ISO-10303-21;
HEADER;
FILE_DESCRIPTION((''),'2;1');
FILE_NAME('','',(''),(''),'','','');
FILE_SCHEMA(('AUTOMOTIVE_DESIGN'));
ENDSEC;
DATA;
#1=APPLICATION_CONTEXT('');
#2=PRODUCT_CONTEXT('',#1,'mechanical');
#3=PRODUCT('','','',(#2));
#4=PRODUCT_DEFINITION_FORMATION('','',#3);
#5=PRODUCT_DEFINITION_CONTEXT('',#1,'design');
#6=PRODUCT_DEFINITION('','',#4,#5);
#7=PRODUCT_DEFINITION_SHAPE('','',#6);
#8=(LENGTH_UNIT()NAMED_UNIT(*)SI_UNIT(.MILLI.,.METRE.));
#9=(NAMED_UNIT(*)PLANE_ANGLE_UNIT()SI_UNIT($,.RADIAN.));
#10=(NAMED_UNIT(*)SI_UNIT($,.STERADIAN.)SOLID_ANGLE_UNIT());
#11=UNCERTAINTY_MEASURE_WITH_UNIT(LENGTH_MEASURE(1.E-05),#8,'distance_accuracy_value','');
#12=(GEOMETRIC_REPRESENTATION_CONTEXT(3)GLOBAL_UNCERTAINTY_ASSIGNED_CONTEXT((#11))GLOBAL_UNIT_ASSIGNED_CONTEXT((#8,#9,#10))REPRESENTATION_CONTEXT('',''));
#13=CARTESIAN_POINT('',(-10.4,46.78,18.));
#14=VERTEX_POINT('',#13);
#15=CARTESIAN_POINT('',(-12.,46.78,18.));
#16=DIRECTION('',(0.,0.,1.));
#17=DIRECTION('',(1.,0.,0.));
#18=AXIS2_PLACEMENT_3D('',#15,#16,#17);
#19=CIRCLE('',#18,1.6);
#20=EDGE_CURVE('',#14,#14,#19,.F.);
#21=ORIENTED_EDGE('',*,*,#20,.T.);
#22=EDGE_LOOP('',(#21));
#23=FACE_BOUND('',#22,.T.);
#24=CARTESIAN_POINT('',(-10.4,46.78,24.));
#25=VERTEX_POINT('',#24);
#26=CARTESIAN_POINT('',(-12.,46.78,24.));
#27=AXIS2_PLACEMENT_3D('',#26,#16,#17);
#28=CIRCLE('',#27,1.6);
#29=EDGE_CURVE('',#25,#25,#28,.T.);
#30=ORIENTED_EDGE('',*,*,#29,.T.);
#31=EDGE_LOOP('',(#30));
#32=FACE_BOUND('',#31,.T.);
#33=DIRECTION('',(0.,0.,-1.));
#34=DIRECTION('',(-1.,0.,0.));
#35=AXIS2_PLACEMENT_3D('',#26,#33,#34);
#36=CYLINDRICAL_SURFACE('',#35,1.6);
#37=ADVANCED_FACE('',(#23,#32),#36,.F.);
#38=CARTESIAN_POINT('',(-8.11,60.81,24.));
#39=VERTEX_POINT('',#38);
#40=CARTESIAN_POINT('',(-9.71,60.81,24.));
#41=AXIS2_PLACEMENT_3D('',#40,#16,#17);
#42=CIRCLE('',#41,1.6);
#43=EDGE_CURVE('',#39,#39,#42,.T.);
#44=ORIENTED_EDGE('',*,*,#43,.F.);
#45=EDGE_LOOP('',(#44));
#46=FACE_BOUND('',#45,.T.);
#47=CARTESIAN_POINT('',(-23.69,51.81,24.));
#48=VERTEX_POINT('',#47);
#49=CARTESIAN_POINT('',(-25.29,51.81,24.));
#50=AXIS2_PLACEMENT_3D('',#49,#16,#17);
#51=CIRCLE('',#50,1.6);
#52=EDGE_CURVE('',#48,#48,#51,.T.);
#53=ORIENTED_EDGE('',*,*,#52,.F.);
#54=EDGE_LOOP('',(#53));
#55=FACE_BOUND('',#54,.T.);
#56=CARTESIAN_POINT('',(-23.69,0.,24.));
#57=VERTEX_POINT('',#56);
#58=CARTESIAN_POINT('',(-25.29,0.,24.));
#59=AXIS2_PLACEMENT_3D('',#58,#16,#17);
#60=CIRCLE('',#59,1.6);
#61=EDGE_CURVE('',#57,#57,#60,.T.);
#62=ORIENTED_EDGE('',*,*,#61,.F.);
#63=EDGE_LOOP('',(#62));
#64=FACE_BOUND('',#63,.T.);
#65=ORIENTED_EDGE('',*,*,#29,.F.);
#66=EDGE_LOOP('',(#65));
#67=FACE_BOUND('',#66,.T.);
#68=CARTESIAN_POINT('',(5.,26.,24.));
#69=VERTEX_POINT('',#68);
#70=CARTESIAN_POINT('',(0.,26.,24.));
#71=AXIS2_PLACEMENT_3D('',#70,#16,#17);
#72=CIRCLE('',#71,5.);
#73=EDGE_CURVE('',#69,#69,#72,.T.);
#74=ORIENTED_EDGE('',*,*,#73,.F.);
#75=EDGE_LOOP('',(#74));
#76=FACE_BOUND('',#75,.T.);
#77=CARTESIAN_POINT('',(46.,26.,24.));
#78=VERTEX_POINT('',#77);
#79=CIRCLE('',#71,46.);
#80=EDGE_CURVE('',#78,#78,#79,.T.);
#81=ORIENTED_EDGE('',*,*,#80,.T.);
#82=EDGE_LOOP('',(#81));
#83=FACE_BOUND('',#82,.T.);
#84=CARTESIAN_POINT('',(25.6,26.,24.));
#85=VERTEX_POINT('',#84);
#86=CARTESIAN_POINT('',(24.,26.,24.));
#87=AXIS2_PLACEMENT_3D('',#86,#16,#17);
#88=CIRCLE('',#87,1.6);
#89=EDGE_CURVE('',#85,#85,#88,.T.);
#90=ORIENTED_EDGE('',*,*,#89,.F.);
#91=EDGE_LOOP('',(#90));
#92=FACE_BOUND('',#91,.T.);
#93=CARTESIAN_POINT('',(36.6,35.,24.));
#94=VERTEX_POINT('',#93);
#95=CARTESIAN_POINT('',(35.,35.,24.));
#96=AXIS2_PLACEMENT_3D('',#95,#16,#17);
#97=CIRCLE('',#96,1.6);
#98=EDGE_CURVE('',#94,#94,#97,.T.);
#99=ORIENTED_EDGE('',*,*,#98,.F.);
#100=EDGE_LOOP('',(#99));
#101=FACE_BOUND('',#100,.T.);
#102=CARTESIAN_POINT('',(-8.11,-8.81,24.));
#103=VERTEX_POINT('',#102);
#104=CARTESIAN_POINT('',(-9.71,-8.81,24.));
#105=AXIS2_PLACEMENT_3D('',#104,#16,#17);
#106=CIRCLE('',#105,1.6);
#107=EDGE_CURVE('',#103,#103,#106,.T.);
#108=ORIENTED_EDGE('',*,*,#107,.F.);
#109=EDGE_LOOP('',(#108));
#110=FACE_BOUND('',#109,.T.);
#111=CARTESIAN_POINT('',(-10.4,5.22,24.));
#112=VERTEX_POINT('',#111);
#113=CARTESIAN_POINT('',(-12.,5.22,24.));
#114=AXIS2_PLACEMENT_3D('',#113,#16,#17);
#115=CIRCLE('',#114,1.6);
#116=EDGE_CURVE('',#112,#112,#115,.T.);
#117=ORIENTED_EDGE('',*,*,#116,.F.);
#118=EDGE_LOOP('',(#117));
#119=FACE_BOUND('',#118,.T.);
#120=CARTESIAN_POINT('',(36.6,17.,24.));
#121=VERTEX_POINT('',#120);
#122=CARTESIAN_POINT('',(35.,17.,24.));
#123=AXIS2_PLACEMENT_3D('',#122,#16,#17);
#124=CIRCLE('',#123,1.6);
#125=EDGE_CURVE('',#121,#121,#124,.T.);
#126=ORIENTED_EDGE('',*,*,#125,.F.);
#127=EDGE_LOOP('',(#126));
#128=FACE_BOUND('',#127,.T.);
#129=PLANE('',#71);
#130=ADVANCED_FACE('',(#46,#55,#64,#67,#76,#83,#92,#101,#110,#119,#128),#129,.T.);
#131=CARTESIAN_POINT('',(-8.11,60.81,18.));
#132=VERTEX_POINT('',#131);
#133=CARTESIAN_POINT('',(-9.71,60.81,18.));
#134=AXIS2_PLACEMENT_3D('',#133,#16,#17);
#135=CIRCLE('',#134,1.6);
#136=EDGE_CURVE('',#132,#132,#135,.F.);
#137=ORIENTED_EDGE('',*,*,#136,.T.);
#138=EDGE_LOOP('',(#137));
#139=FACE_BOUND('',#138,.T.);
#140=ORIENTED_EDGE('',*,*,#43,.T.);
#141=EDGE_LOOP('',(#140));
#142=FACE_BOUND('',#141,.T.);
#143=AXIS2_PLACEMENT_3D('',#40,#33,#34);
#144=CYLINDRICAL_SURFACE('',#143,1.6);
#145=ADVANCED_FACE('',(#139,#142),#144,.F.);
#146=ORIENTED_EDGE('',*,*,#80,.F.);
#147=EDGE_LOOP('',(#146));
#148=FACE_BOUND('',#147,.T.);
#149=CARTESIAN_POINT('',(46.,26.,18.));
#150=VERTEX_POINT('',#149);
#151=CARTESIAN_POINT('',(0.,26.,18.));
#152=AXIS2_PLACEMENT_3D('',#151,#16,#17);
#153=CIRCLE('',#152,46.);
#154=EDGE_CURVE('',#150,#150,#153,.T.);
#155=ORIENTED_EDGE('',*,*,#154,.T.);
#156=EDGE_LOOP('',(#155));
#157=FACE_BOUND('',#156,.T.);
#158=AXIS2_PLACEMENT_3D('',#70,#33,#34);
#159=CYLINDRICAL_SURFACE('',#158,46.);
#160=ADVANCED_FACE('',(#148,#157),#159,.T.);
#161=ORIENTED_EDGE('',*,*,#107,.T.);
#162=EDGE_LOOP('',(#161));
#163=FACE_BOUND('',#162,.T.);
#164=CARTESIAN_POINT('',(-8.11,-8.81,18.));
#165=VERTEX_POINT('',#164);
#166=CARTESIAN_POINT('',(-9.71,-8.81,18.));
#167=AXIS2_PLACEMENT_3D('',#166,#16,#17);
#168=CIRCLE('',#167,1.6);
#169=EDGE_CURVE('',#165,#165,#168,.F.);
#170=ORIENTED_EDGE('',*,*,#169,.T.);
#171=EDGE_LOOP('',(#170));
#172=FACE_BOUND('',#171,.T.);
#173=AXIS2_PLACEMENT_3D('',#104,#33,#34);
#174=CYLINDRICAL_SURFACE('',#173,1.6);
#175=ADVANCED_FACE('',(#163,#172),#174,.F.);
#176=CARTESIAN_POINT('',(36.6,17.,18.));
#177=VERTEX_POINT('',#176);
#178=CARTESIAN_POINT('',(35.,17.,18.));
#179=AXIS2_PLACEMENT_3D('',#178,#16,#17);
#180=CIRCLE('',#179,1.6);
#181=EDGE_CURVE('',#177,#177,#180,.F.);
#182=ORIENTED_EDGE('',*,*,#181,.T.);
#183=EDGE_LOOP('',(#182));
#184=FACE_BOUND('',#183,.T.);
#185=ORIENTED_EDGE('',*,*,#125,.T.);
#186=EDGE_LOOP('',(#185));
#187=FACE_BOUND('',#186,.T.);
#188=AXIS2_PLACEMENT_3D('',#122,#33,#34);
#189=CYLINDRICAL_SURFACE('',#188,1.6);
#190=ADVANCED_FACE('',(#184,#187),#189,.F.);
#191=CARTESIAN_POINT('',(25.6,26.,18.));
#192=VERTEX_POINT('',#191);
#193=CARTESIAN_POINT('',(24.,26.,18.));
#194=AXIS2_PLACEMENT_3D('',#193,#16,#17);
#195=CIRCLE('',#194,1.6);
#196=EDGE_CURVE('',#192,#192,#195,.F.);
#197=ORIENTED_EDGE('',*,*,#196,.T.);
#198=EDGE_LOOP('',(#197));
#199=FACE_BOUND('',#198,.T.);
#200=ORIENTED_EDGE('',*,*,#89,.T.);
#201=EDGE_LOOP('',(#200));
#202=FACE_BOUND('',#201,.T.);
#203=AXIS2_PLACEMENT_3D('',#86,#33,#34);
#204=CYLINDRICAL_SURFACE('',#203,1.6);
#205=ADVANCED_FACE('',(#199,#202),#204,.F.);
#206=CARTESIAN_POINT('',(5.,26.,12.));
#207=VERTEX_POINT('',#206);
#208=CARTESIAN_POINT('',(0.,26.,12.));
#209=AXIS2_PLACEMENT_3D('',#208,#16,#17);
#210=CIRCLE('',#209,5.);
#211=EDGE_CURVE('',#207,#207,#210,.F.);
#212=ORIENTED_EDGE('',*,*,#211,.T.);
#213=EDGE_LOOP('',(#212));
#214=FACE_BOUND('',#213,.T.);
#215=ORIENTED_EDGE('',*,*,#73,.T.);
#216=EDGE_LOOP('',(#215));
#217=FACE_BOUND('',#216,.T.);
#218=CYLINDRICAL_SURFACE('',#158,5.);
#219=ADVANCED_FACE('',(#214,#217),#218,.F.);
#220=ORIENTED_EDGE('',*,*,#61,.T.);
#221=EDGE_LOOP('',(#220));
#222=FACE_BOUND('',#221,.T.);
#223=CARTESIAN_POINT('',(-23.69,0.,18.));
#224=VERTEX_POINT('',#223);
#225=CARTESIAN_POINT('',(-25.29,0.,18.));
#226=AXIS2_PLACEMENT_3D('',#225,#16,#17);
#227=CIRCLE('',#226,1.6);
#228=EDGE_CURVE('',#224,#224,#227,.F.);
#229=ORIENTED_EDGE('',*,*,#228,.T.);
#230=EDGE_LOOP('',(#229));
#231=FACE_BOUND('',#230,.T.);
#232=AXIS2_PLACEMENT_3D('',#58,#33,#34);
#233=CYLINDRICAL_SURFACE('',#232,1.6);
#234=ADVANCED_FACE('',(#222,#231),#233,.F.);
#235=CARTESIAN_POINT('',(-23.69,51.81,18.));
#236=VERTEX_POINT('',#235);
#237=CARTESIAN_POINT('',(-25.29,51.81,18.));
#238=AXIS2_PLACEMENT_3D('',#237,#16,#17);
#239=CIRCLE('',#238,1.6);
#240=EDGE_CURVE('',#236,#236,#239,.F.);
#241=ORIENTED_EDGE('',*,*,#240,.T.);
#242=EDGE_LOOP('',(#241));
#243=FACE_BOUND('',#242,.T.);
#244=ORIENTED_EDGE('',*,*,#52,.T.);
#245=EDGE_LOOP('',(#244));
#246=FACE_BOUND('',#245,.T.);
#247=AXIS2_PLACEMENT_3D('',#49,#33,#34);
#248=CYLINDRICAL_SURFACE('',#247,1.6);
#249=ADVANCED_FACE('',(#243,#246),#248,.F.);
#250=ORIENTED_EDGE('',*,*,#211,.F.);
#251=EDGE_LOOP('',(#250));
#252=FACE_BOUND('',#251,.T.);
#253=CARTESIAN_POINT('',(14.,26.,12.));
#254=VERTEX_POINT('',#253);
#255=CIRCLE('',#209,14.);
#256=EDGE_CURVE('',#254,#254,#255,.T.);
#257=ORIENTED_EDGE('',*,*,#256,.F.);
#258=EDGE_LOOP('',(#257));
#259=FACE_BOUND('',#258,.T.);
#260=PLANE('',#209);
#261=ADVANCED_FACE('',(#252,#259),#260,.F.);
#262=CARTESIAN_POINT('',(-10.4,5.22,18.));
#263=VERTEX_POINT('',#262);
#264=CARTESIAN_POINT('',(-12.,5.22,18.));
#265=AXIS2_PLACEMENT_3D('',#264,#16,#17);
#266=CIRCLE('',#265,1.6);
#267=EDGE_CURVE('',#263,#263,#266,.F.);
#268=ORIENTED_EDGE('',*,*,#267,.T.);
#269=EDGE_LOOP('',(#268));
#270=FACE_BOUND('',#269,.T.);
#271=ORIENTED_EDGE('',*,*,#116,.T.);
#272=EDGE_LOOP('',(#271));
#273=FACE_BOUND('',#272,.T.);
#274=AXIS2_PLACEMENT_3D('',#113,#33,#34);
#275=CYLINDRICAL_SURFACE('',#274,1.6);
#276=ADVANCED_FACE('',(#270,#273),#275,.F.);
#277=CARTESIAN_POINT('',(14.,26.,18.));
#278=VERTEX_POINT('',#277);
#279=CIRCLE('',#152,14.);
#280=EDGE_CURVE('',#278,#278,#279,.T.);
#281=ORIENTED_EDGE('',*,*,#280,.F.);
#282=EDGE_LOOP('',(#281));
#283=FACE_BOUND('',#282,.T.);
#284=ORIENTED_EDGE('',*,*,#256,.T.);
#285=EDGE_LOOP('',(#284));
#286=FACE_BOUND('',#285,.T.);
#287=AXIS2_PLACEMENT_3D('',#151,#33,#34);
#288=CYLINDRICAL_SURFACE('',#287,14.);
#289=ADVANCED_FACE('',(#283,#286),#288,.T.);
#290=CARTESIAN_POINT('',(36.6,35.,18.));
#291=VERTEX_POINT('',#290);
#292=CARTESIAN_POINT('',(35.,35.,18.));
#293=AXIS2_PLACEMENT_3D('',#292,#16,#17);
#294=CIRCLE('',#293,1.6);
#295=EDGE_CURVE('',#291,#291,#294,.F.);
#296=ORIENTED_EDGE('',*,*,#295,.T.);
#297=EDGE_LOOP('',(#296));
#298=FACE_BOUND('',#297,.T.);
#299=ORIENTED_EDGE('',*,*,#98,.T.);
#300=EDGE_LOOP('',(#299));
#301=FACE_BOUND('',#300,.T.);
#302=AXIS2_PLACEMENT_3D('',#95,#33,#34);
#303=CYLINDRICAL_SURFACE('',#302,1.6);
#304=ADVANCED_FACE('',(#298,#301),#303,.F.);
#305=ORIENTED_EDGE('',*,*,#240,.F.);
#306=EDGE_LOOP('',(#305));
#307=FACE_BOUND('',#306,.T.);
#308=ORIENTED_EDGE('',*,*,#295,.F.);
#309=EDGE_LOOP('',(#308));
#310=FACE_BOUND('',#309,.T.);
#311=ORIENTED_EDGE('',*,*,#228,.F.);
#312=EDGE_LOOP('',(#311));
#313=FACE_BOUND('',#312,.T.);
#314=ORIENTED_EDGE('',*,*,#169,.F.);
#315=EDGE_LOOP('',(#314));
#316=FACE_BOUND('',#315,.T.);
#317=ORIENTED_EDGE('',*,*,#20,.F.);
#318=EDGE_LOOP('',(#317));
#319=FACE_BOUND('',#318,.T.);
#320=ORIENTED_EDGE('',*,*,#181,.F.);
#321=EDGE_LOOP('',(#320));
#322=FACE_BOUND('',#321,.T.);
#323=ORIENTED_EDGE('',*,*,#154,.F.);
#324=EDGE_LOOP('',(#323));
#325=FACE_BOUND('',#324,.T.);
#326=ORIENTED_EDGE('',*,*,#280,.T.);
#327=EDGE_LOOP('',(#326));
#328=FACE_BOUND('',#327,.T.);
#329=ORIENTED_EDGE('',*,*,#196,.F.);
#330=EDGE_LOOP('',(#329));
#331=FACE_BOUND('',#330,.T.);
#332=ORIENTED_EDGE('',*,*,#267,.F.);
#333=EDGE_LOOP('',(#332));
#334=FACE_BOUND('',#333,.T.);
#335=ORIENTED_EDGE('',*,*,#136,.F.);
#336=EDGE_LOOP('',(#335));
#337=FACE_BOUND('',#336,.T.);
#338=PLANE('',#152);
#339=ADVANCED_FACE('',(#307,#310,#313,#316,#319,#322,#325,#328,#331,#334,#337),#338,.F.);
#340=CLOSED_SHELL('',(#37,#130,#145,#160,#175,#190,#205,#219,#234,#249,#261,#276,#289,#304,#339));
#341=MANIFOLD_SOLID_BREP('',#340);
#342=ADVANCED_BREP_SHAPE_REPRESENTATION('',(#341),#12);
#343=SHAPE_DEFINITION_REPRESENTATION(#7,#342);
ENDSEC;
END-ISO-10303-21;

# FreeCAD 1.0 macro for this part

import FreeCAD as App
import Part
import Sketcher

doc = App.newDocument("Part")
params = doc.addObject("Spreadsheet::Sheet", "Params")
for row, (alias, value) in enumerate([
    ("sketch1_diameter", "92 mm"),
    ("pad1_length", "6 mm"),
    ("sketch2_diameter", "28 mm"),
    ("pad2_length", "6 mm"),
    ("sketch3_diameter", "3.2 mm"),
    ("sketch4_diameter", "10 mm"),
], start=1):
    params.set(f"A{row}", alias)
    params.set(f"B{row}", "=" + value)
    params.setAlias(f"B{row}", alias)

body = doc.addObject("PartDesign::Body", "Body")

# Sketch on XY plane
sketch1 = body.newObject("Sketcher::SketchObject", "Sketch")
sketch1.AttachmentSupport = (doc.getObject("XY_Plane"), [""])
sketch1.MapMode = "FlatFace"
sketch1.AttachmentOffset = App.Placement(App.Vector(0, 0, 18), App.Rotation())
sketch1.addGeometry(Part.Circle(App.Vector(0, 26, 0), App.Vector(0, 0, 1), 46), False)
sketch1.addConstraint(Sketcher.Constraint("PointOnObject", 0, 3, -2))
sketch1.addConstraint(Sketcher.Constraint("Diameter", 0, 92.0))
sketch1.addConstraint(Sketcher.Constraint("DistanceY", -1, 1, 0, 3, 26.0))
sketch1.setExpression("Constraints[1]", "Params.sketch1_diameter")
pad1 = body.newObject("PartDesign::Pad", "Pad")
pad1.Profile = sketch1
pad1.setExpression("Length", "Params.pad1_length")

# Sketch on XY plane
sketch2 = body.newObject("Sketcher::SketchObject", "Sketch001")
sketch2.AttachmentSupport = (doc.getObject("XY_Plane"), [""])
sketch2.MapMode = "FlatFace"
sketch2.AttachmentOffset = App.Placement(App.Vector(0, 0, 12), App.Rotation())
sketch2.addGeometry(Part.Circle(App.Vector(0, 26, 0), App.Vector(0, 0, 1), 14), False)
sketch2.addConstraint(Sketcher.Constraint("PointOnObject", 0, 3, -2))
sketch2.addConstraint(Sketcher.Constraint("Diameter", 0, 28.0))
sketch2.addConstraint(Sketcher.Constraint("DistanceY", -1, 1, 0, 3, 26.0))
sketch2.setExpression("Constraints[1]", "Params.sketch2_diameter")
pad2 = body.newObject("PartDesign::Pad", "Pad001")
pad2.Profile = sketch2
pad2.setExpression("Length", "Params.pad2_length")

# Sketch on XY plane
sketch3 = body.newObject("Sketcher::SketchObject", "Sketch002")
sketch3.AttachmentSupport = (doc.getObject("XY_Plane"), [""])
sketch3.MapMode = "FlatFace"
sketch3.addGeometry(Part.Circle(App.Vector(24, 26, 0), App.Vector(0, 0, 1), 1.6), False)
sketch3.addGeometry(Part.Circle(App.Vector(35, 35, 0), App.Vector(0, 0, 1), 1.6), False)
sketch3.addGeometry(Part.Circle(App.Vector(35, 17, 0), App.Vector(0, 0, 1), 1.6), False)
sketch3.addGeometry(Part.Circle(App.Vector(-12, 46.78, 0), App.Vector(0, 0, 1), 1.6), False)
sketch3.addGeometry(Part.Circle(App.Vector(-25.29, 51.81, 0), App.Vector(0, 0, 1), 1.6), False)
sketch3.addGeometry(Part.Circle(App.Vector(-9.71, 60.81, 0), App.Vector(0, 0, 1), 1.6), False)
sketch3.addGeometry(Part.Circle(App.Vector(-12, 5.22, 0), App.Vector(0, 0, 1), 1.6), False)
sketch3.addGeometry(Part.Circle(App.Vector(-9.71, -8.81, 0), App.Vector(0, 0, 1), 1.6), False)
sketch3.addGeometry(Part.Circle(App.Vector(-25.29, 0, 0), App.Vector(0, 0, 1), 1.6), False)
sketch3.addConstraint(Sketcher.Constraint("Equal", 0, 1))
sketch3.addConstraint(Sketcher.Constraint("Equal", 1, 2))
sketch3.addConstraint(Sketcher.Constraint("Equal", 2, 3))
sketch3.addConstraint(Sketcher.Constraint("Equal", 3, 4))
sketch3.addConstraint(Sketcher.Constraint("Equal", 4, 5))
sketch3.addConstraint(Sketcher.Constraint("Equal", 5, 6))
sketch3.addConstraint(Sketcher.Constraint("Equal", 6, 7))
sketch3.addConstraint(Sketcher.Constraint("Equal", 7, 8))
sketch3.addConstraint(Sketcher.Constraint("PointOnObject", 8, 3, -1))
sketch3.addConstraint(Sketcher.Constraint("Vertical", 1, 3, 2, 3))
sketch3.addConstraint(Sketcher.Constraint("Vertical", 3, 3, 6, 3))
sketch3.addConstraint(Sketcher.Constraint("Vertical", 5, 3, 7, 3))
sketch3.addConstraint(Sketcher.Constraint("Vertical", 4, 3, 8, 3))
sketch3.addConstraint(Sketcher.Constraint("Diameter", 0, 3.2))
sketch3.addConstraint(Sketcher.Constraint("DistanceX", -1, 1, 0, 3, 24.0))
sketch3.addConstraint(Sketcher.Constraint("DistanceY", -1, 1, 0, 3, 26.0))
sketch3.addConstraint(Sketcher.Constraint("DistanceX", -1, 1, 1, 3, 35.0))
sketch3.addConstraint(Sketcher.Constraint("DistanceY", -1, 1, 1, 3, 35.0))
sketch3.addConstraint(Sketcher.Constraint("DistanceY", -1, 1, 2, 3, 17.0))
sketch3.addConstraint(Sketcher.Constraint("DistanceX", 3, 3, -1, 1, 12.0))
sketch3.addConstraint(Sketcher.Constraint("DistanceY", 4, 3, 5, 3, 9.0))
sketch3.addConstraint(Sketcher.Constraint("DistanceY", -1, 1, 3, 3, 46.78))
sketch3.addConstraint(Sketcher.Constraint("DistanceX", 4, 3, -1, 1, 25.29))
sketch3.addConstraint(Sketcher.Constraint("DistanceY", -1, 1, 4, 3, 51.81))
sketch3.addConstraint(Sketcher.Constraint("DistanceX", 5, 3, -1, 1, 9.71))
sketch3.addConstraint(Sketcher.Constraint("DistanceY", -1, 1, 6, 3, 5.22))
sketch3.addConstraint(Sketcher.Constraint("DistanceY", 7, 3, -1, 1, 8.81))
sketch3.setExpression("Constraints[13]", "Params.sketch3_diameter")
pocket1 = body.newObject("PartDesign::Pocket", "Pocket")
pocket1.Profile = sketch3
pocket1.Type = "ThroughAll"
pocket1.Reversed = True

# Sketch on XY plane
sketch4 = body.newObject("Sketcher::SketchObject", "Sketch003")
sketch4.AttachmentSupport = (doc.getObject("XY_Plane"), [""])
sketch4.MapMode = "FlatFace"
sketch4.addGeometry(Part.Circle(App.Vector(0, 26, 0), App.Vector(0, 0, 1), 5), False)
sketch4.addConstraint(Sketcher.Constraint("PointOnObject", 0, 3, -2))
sketch4.addConstraint(Sketcher.Constraint("Diameter", 0, 10.0))
sketch4.addConstraint(Sketcher.Constraint("DistanceY", -1, 1, 0, 3, 26.0))
sketch4.setExpression("Constraints[1]", "Params.sketch4_diameter")
pocket2 = body.newObject("PartDesign::Pocket", "Pocket001")
pocket2.Profile = sketch4
pocket2.Type = "ThroughAll"
pocket2.Reversed = True

doc.recompute()
